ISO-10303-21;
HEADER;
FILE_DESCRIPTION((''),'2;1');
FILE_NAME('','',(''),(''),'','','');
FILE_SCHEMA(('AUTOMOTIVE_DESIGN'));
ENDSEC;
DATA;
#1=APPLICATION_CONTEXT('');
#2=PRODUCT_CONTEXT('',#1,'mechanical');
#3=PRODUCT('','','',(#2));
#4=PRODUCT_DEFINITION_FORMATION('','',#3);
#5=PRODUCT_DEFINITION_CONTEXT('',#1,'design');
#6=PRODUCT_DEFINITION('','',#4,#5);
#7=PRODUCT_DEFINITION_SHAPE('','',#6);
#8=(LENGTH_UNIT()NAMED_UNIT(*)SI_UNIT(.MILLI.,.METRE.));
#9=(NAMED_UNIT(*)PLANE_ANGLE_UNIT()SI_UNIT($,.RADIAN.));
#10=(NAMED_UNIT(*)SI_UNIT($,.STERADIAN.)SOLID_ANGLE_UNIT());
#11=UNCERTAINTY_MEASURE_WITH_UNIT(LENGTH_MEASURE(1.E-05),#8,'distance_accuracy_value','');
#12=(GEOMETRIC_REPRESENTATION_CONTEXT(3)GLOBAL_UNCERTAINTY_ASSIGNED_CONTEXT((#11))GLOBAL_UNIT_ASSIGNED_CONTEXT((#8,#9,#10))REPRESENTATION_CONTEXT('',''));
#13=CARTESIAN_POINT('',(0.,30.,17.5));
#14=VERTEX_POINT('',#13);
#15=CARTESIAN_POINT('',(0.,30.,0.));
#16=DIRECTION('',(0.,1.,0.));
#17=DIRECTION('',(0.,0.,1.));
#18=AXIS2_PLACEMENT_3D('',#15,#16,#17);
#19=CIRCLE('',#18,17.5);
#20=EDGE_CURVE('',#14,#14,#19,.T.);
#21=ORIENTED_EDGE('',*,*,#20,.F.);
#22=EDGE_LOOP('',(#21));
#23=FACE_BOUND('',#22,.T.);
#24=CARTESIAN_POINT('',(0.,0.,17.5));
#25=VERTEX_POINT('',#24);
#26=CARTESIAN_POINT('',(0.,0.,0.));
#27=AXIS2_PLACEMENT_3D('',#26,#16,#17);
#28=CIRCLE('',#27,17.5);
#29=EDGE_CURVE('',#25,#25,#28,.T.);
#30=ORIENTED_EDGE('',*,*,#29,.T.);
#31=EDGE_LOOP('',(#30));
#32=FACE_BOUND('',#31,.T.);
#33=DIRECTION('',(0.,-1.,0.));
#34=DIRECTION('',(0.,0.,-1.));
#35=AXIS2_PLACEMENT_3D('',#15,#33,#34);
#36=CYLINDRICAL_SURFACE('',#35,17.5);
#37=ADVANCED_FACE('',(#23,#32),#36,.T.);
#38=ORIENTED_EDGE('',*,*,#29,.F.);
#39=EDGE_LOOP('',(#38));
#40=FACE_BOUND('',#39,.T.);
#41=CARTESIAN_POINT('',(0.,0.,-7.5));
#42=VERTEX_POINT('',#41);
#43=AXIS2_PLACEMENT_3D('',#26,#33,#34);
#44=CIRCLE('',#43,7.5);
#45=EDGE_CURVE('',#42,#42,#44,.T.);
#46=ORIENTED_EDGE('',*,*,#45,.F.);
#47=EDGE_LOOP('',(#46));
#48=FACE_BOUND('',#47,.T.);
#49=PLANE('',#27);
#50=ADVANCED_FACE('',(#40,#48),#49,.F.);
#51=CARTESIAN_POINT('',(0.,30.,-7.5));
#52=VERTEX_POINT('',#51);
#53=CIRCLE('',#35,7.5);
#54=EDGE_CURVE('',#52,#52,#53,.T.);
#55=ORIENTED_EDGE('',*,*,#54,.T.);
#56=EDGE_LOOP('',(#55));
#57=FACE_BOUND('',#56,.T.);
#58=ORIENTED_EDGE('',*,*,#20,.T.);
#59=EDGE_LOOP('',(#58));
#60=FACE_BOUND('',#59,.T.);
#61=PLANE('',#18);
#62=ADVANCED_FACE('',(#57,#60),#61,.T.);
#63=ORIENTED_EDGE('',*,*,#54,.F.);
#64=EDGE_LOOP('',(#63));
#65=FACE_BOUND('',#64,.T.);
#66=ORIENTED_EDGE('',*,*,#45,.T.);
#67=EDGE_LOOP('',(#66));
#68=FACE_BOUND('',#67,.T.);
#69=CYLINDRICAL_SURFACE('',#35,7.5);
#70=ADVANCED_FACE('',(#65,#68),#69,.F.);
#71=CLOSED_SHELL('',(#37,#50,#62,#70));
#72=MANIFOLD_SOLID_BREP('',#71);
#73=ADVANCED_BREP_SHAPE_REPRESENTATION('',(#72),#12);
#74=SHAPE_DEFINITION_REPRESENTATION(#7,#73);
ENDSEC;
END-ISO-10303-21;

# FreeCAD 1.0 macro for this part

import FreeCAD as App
import Part
import Sketcher

doc = App.newDocument("Part")
params = doc.addObject("Spreadsheet::Sheet", "Params")
for row, (alias, value) in enumerate([
    ("sketch1_diameter", "35 mm"),
    ("pad1_length", "30 mm"),
    ("sketch2_diameter", "15 mm"),
    ("pocket1_length", "30 mm"),
], start=1):
    params.set(f"A{row}", alias)
    params.set(f"B{row}", "=" + value)
    params.setAlias(f"B{row}", alias)

body = doc.addObject("PartDesign::Body", "Body")

sketch1 = body.newObject("Sketcher::SketchObject", "Sketch")
sketch1.AttachmentSupport = (doc.getObject("XZ_Plane"), [""])
sketch1.MapMode = "FlatFace"
sketch1.addGeometry(Part.Circle(App.Vector(0, 0, 0), App.Vector(0, 0, 1), 18), False)
sketch1.addConstraint([
    Sketcher.Constraint("Coincident", 0, 3, -1, 1),
    Sketcher.Constraint("Diameter", 0, 35.0),
])
sketch1.setExpression("Constraints[1]", "Params.sketch1_diameter")
pad1 = body.newObject("PartDesign::Pad", "Pad")
pad1.Profile = sketch1
pad1.setExpression("Length", "Params.pad1_length")
pad1.Reversed = True

sketch2 = body.newObject("Sketcher::SketchObject", "Sketch001")
sketch2.AttachmentSupport = (doc.getObject("XZ_Plane"), [""])
sketch2.MapMode = "FlatFace"
sketch2.addGeometry(Part.Circle(App.Vector(0, 0, 0), App.Vector(0, 0, 1), 8), False)
sketch2.addConstraint([
    Sketcher.Constraint("Coincident", 0, 3, -1, 1),
    Sketcher.Constraint("Diameter", 0, 15.0),
])
sketch2.setExpression("Constraints[1]", "Params.sketch2_diameter")
pocket1 = body.newObject("PartDesign::Pocket", "Pocket")
pocket1.Profile = sketch2
pocket1.setExpression("Length", "Params.pocket1_length")

doc.recompute()
